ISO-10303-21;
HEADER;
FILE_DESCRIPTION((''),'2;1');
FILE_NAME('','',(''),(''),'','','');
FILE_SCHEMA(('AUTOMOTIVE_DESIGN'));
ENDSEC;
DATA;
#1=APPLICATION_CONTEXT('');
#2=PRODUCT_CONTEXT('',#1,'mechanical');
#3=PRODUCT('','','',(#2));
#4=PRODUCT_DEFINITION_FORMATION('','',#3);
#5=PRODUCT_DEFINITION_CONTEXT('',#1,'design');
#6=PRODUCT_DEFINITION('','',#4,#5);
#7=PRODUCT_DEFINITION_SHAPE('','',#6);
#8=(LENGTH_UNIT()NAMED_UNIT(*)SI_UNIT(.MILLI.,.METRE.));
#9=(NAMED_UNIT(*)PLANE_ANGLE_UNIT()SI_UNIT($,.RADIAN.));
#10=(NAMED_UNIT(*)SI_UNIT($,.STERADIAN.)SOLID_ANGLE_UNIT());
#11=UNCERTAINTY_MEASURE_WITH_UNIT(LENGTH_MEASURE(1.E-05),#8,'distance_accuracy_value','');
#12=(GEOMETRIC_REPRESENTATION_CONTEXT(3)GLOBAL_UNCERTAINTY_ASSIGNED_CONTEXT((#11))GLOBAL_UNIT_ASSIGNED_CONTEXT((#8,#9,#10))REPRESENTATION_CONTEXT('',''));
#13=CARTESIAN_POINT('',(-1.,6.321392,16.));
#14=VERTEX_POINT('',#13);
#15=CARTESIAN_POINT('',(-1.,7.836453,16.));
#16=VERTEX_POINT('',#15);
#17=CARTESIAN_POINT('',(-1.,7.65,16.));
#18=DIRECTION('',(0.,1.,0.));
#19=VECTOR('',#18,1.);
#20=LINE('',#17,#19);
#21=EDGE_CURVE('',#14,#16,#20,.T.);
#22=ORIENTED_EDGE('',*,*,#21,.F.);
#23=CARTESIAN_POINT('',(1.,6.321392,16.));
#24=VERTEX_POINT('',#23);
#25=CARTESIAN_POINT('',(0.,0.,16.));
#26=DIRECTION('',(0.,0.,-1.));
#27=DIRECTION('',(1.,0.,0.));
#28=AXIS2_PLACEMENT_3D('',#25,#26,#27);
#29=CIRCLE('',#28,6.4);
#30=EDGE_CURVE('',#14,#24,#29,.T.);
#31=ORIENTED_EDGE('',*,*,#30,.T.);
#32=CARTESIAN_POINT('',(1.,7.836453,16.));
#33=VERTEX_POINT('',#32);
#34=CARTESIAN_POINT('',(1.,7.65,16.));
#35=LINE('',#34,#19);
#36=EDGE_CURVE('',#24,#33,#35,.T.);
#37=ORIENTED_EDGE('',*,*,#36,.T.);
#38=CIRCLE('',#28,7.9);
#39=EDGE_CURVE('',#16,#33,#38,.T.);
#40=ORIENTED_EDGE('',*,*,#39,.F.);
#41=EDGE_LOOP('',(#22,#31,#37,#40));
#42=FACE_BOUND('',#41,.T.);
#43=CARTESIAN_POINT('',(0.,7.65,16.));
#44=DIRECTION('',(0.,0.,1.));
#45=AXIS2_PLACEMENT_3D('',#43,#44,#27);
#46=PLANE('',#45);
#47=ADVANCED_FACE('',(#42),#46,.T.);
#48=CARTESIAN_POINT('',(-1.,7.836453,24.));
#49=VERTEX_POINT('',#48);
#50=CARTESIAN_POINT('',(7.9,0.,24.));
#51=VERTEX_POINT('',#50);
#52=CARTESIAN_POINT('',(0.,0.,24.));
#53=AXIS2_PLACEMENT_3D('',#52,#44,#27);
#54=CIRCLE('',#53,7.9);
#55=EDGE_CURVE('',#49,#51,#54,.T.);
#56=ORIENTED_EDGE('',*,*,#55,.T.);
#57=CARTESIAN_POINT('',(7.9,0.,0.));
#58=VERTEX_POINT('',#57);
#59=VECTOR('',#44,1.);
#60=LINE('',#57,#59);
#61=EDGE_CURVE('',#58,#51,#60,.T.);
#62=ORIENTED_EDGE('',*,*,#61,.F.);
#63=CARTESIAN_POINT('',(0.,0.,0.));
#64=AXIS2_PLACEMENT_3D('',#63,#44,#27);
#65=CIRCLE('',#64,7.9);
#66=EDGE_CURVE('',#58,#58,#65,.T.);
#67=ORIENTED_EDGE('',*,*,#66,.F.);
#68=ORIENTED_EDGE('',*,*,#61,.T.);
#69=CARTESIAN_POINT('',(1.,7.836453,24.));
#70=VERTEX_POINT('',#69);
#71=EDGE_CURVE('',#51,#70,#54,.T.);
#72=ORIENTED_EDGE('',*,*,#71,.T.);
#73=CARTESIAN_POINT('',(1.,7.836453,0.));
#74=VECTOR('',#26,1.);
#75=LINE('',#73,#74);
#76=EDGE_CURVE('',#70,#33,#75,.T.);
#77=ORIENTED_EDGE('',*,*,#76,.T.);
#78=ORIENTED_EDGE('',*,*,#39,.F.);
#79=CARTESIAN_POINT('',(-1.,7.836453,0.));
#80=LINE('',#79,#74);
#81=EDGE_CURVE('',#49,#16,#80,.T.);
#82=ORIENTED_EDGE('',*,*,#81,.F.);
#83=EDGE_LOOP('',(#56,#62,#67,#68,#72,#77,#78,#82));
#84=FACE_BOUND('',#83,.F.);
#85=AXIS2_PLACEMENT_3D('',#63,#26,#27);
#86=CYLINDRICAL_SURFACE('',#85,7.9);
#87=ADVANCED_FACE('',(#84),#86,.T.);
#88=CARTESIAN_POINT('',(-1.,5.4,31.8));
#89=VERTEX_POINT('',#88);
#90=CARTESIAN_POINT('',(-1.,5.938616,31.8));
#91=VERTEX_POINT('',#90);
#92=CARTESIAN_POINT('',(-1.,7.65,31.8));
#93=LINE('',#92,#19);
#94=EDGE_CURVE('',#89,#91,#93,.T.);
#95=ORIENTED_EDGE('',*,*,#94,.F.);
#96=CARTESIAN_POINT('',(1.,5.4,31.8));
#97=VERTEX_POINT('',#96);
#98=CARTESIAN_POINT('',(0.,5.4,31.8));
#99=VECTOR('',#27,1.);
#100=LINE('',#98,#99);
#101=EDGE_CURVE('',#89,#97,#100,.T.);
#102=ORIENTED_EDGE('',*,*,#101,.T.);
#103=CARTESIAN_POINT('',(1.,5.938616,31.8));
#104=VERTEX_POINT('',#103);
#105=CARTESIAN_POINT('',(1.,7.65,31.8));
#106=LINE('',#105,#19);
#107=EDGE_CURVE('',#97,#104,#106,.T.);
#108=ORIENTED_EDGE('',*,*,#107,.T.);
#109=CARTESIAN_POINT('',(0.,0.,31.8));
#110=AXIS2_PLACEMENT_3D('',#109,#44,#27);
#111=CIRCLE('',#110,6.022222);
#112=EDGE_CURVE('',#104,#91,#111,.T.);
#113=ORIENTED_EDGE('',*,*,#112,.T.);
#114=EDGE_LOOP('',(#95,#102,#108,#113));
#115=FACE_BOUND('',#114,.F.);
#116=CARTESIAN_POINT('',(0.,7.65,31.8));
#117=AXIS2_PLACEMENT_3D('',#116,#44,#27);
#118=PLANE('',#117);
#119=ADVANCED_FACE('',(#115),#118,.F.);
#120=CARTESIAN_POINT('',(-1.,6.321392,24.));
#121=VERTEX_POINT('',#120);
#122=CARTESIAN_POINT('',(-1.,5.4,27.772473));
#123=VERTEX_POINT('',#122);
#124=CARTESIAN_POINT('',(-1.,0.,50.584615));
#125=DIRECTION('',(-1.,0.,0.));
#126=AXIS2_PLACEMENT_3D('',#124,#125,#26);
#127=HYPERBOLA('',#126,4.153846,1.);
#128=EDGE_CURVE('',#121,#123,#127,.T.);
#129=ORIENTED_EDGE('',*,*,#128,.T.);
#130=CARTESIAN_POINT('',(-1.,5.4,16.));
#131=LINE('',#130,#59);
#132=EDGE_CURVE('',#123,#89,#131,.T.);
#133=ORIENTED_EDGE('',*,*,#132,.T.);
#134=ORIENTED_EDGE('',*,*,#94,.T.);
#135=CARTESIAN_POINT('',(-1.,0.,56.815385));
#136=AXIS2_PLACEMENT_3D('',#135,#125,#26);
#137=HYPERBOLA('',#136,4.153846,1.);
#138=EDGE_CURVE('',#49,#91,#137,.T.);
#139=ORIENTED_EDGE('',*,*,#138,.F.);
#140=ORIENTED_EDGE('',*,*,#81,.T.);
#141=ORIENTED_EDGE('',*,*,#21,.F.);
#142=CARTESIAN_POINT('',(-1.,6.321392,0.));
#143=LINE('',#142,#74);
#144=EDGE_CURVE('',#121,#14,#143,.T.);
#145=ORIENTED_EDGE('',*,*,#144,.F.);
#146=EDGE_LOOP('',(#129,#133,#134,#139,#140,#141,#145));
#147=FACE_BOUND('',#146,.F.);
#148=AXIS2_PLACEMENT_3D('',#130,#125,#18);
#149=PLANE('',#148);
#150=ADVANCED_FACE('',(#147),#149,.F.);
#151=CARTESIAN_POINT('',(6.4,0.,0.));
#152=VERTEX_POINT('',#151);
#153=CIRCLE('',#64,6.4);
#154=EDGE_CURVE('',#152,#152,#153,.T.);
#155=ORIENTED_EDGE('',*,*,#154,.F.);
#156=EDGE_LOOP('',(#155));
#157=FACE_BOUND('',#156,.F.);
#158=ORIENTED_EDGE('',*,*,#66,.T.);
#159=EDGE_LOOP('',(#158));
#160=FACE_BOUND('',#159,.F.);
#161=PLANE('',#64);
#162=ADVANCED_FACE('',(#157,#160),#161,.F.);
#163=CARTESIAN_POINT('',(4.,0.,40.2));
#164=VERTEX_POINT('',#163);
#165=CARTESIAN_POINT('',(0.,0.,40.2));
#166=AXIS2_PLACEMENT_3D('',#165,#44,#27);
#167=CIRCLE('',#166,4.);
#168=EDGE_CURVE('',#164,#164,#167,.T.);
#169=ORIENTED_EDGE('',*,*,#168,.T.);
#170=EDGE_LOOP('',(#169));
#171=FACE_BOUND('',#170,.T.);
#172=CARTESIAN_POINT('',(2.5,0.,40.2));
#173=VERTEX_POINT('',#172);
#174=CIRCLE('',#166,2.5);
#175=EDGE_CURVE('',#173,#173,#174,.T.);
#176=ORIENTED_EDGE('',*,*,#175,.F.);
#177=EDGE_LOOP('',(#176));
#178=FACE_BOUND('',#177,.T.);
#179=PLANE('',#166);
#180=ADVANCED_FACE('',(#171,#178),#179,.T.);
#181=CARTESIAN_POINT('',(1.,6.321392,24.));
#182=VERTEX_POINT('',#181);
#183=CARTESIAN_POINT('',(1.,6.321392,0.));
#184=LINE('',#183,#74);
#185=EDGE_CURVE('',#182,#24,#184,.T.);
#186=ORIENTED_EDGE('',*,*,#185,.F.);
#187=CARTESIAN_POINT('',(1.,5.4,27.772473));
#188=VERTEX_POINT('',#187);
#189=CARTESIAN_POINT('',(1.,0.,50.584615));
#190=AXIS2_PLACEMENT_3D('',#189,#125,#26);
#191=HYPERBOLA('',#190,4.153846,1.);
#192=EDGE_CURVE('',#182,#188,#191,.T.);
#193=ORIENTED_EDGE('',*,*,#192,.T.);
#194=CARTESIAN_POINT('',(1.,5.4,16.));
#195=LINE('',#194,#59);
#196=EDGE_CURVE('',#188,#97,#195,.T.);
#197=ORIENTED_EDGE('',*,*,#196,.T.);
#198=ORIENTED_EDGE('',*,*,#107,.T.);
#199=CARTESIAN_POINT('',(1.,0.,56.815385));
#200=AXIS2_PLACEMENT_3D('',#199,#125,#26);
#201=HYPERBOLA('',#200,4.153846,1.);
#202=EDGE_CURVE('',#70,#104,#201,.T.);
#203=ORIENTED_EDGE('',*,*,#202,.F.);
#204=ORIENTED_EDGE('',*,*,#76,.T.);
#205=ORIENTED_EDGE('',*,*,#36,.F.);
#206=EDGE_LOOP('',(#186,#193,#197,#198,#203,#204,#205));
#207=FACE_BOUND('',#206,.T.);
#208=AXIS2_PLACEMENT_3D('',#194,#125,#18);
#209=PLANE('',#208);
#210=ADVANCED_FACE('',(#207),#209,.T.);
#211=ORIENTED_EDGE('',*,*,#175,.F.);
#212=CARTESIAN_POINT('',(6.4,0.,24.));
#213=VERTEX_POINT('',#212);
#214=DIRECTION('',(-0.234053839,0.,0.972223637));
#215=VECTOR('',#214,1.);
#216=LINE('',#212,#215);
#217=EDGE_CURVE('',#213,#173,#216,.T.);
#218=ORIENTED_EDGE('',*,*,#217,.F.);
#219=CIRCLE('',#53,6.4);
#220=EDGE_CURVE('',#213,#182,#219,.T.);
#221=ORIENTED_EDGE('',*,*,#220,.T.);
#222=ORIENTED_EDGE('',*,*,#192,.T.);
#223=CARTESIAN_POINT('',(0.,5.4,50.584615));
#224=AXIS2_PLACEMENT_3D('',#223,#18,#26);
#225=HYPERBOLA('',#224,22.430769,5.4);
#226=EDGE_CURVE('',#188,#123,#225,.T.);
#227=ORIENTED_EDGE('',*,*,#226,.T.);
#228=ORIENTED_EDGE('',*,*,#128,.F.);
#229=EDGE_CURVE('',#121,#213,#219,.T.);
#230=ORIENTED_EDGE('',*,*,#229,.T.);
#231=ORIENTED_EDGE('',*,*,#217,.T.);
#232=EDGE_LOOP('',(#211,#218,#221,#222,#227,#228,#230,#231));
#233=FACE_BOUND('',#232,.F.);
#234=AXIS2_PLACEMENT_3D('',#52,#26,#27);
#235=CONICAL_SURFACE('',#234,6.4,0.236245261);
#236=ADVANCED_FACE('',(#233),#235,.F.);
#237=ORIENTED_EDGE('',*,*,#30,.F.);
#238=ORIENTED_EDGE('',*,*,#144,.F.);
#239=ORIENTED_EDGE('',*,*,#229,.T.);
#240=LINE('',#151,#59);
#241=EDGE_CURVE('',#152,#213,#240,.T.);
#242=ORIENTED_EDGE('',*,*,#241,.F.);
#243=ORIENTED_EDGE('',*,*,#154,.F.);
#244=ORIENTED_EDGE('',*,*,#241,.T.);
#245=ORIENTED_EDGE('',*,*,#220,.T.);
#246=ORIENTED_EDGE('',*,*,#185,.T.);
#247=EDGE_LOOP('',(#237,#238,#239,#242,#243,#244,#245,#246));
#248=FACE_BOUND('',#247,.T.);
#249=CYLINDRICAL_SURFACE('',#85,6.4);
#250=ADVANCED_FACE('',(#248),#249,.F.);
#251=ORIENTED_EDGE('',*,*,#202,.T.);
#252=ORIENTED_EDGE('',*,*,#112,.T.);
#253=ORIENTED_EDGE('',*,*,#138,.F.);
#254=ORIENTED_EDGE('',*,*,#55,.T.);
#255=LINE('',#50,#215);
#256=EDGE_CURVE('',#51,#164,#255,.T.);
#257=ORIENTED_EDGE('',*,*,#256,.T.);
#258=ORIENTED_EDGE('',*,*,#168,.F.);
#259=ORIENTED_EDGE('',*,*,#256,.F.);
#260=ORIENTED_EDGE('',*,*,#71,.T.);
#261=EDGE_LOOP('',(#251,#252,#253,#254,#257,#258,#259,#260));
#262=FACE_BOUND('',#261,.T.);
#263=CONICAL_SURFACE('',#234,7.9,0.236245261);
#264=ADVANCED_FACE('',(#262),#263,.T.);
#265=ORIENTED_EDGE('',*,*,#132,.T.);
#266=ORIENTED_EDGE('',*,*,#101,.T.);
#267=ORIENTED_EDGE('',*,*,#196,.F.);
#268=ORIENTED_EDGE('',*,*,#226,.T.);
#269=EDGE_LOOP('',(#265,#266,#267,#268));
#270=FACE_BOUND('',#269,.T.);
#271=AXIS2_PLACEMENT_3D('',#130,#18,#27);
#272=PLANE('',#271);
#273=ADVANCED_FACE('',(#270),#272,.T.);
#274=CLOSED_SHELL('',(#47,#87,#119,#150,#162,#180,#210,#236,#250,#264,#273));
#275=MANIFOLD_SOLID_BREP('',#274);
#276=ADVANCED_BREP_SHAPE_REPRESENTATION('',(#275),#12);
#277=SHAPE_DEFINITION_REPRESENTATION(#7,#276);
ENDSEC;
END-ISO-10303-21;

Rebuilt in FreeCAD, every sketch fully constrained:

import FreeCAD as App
import Part
import Sketcher

V = App.Vector
Q = App.Units.Quantity


def add_polygon(sketch, points):
    """Adds a closed chain of lines whose ends are joined by coincident constraints."""
    first, n = sketch.GeometryCount, len(points)
    for a, b in zip(points, points[1:] + points[:1]):
        sketch.addGeometry(Part.LineSegment(App.Vector(*a, 0), App.Vector(*b, 0)), False)
    for i in range(n):
        sketch.addConstraint(Sketcher.Constraint("Coincident", first + i, 2, first + (i + 1) % n, 1))

doc = App.newDocument("Part")
params = doc.addObject("Spreadsheet::Sheet", "Params")
for row, (alias, value) in enumerate([
    ("sketch1_width", "2 mm"),
    ("sketch1_height", "4.5 mm"),
    ("pad1_length", "15.8 mm"),
    ("sketch2_width", "6.4 mm"),
    ("sketch2_width2", "2.5 mm"),
    ("sketch2_height", "16.2 mm"),
    ("revolution_angle", "360 deg"),
    ("sketch3_width", "4 mm"),
    ("sketch3_width2", "7.9 mm"),
    ("sketch3_height", "16.2 mm"),
    ("revolution2_angle", "360 deg"),
    ("sketch4_diameter", "12.8 mm"),
    ("pad2_length", "24 mm"),
    ("sketch5_diameter", "15.8 mm"),
    ("pad3_length", "24 mm"),
], start=1):
    params.set(f"A{row}", alias)
    params.set(f"B{row}", "=" + value)
    params.setAlias(f"B{row}", alias)

body = doc.addObject("PartDesign::Body", "Body")

# Sketch on XY plane
sketch1 = body.newObject("Sketcher::SketchObject", "Sketch")
sketch1.AttachmentSupport = (doc.getObject("XY_Plane"), [""])
sketch1.MapMode = "FlatFace"
sketch1.AttachmentOffset = App.Placement(V(0, 0, 16), App.Rotation())
add_polygon(sketch1, [(-1, 9.9), (-1, 5.4), (1, 5.4), (1, 9.9)])  # lines 0-3
sketch1.addConstraint(Sketcher.Constraint("Vertical", 0))
sketch1.addConstraint(Sketcher.Constraint("Horizontal", 1))
sketch1.addConstraint(Sketcher.Constraint("Vertical", 2))
sketch1.addConstraint(Sketcher.Constraint("Horizontal", 3))
sketch1.addConstraint(Sketcher.Constraint("DistanceX", 1, 1, 1, 2, Q("2 mm")))
sketch1.addConstraint(Sketcher.Constraint("DistanceY", 0, 2, 0, 1, Q("4.5 mm")))
sketch1.addConstraint(Sketcher.Constraint("DistanceX", 0, 2, -1, 1, Q("1 mm")))
sketch1.addConstraint(Sketcher.Constraint("DistanceY", -1, 1, 0, 2, Q("5.4 mm")))
sketch1.setExpression("Constraints[8]", "Params.sketch1_width")
sketch1.setExpression("Constraints[9]", "Params.sketch1_height")
pad1 = body.newObject("PartDesign::Pad", "Pad")
pad1.Profile = sketch1
pad1.setExpression("Length", "Params.pad1_length")
body2 = doc.addObject("PartDesign::Body", "Body001")

# Sketch on XZ plane
sketch2 = body2.newObject("Sketcher::SketchObject", "Sketch001")
sketch2.AttachmentSupport = (doc.getObject("XZ_Plane001"), [""])
sketch2.MapMode = "FlatFace"
add_polygon(sketch2, [(0, 24), (6.4, 24), (2.5, 40.2), (0, 40.2)])  # lines 0-3
sketch2.addConstraint(Sketcher.Constraint("Horizontal", 0))
sketch2.addConstraint(Sketcher.Constraint("Horizontal", 2))
sketch2.addConstraint(Sketcher.Constraint("Vertical", 3))
sketch2.addConstraint(Sketcher.Constraint("PointOnObject", 2, 2, -2))
sketch2.addConstraint(Sketcher.Constraint("DistanceX", 0, 1, 0, 2, Q("6.4 mm")))
sketch2.addConstraint(Sketcher.Constraint("DistanceX", 2, 2, 2, 1, Q("2.5 mm")))
sketch2.addConstraint(Sketcher.Constraint("DistanceY", 3, 2, 3, 1, Q("16.2 mm")))
sketch2.addConstraint(Sketcher.Constraint("DistanceY", -1, 1, 0, 2, Q("24 mm")))
sketch2.setExpression("Constraints[8]", "Params.sketch2_width")
sketch2.setExpression("Constraints[9]", "Params.sketch2_width2")
sketch2.setExpression("Constraints[10]", "Params.sketch2_height")
revolution = body2.newObject("PartDesign::Revolution", "Revolution")
revolution.Profile = sketch2
revolution.ReferenceAxis = (sketch2, ["V_Axis"])
revolution.setExpression("Angle", "Params.revolution_angle")
body3 = doc.addObject("PartDesign::Body", "Body002")

# Sketch on XZ plane
sketch3 = body3.newObject("Sketcher::SketchObject", "Sketch002")
sketch3.AttachmentSupport = (doc.getObject("XZ_Plane002"), [""])
sketch3.MapMode = "FlatFace"
add_polygon(sketch3, [(0, 24), (7.9, 24), (4, 40.2), (0, 40.2)])  # lines 0-3
sketch3.addConstraint(Sketcher.Constraint("Horizontal", 0))
sketch3.addConstraint(Sketcher.Constraint("Horizontal", 2))
sketch3.addConstraint(Sketcher.Constraint("Vertical", 3))
sketch3.addConstraint(Sketcher.Constraint("PointOnObject", 2, 2, -2))
sketch3.addConstraint(Sketcher.Constraint("DistanceX", 2, 2, 2, 1, Q("4 mm")))
sketch3.addConstraint(Sketcher.Constraint("DistanceX", 0, 1, 0, 2, Q("7.9 mm")))
sketch3.addConstraint(Sketcher.Constraint("DistanceY", 3, 2, 3, 1, Q("16.2 mm")))
sketch3.addConstraint(Sketcher.Constraint("DistanceY", -1, 1, 0, 2, Q("24 mm")))
sketch3.setExpression("Constraints[8]", "Params.sketch3_width")
sketch3.setExpression("Constraints[9]", "Params.sketch3_width2")
sketch3.setExpression("Constraints[10]", "Params.sketch3_height")
revolution2 = body3.newObject("PartDesign::Revolution", "Revolution001")
revolution2.Profile = sketch3
revolution2.ReferenceAxis = (sketch3, ["V_Axis"])
revolution2.setExpression("Angle", "Params.revolution2_angle")
doc.recompute()

boolean = body3.newObject("PartDesign::Boolean", "Boolean")
boolean.Type = "Cut"
boolean.addObjects([body2])
body4 = doc.addObject("PartDesign::Body", "Body003")

# Sketch on XY plane
sketch4 = body4.newObject("Sketcher::SketchObject", "Sketch003")
sketch4.AttachmentSupport = (doc.getObject("XY_Plane003"), [""])
sketch4.MapMode = "FlatFace"
sketch4.addGeometry(Part.Circle(V(0, 0, 0), V(0, 0, 1), 6.4), False)
sketch4.addConstraint(Sketcher.Constraint("Coincident", 0, 3, -1, 1))
sketch4.addConstraint(Sketcher.Constraint("Diameter", 0, Q("12.8 mm")))
sketch4.setExpression("Constraints[1]", "Params.sketch4_diameter")
pad2 = body4.newObject("PartDesign::Pad", "Pad001")
pad2.Profile = sketch4
pad2.setExpression("Length", "Params.pad2_length")
body5 = doc.addObject("PartDesign::Body", "Body004")

# Sketch on XY plane
sketch5 = body5.newObject("Sketcher::SketchObject", "Sketch004")
sketch5.AttachmentSupport = (doc.getObject("XY_Plane004"), [""])
sketch5.MapMode = "FlatFace"
sketch5.addGeometry(Part.Circle(V(0, 0, 0), V(0, 0, 1), 7.9), False)
sketch5.addConstraint(Sketcher.Constraint("Coincident", 0, 3, -1, 1))
sketch5.addConstraint(Sketcher.Constraint("Diameter", 0, Q("15.8 mm")))
sketch5.setExpression("Constraints[1]", "Params.sketch5_diameter")
pad3 = body5.newObject("PartDesign::Pad", "Pad002")
pad3.Profile = sketch5
pad3.setExpression("Length", "Params.pad3_length")
doc.recompute()

boolean2 = body5.newObject("PartDesign::Boolean", "Boolean001")
boolean2.Type = "Cut"
boolean2.addObjects([body4])
doc.recompute()

boolean3 = body5.newObject("PartDesign::Boolean", "Boolean002")
boolean3.Type = "Fuse"
boolean3.addObjects([body3])
doc.recompute()

boolean4 = body5.newObject("PartDesign::Boolean", "Boolean003")
boolean4.Type = "Cut"
boolean4.addObjects([body])

doc.recompute()
